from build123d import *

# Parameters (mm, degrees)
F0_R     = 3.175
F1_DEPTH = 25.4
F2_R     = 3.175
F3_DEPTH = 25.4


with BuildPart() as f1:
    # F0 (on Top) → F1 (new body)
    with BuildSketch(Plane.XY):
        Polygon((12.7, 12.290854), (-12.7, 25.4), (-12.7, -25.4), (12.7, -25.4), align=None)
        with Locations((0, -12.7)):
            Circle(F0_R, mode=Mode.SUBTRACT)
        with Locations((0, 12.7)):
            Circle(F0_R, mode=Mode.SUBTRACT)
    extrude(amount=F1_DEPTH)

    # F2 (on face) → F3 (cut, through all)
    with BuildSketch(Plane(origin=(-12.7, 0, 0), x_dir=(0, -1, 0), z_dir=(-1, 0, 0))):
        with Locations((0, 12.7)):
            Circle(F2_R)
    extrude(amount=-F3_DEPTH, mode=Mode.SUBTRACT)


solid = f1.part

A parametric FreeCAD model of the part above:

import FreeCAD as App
import Part
import Sketcher

V = App.Vector
Q = App.Units.Quantity


def add_polygon(sketch, points):
    """Adds a closed chain of lines whose ends are joined by coincident constraints."""
    first, n = sketch.GeometryCount, len(points)
    for a, b in zip(points, points[1:] + points[:1]):
        sketch.addGeometry(Part.LineSegment(App.Vector(*a, 0), App.Vector(*b, 0)), False)
    for i in range(n):
        sketch.addConstraint(Sketcher.Constraint("Coincident", first + i, 2, first + (i + 1) % n, 1))

doc = App.newDocument("Part")
body = doc.addObject("PartDesign::Body", "Body")

# Sketch on XY plane
sketch1 = doc.addObject("Sketcher::SketchObject", "Sketch")
body.addObject(sketch1)
sketch1.AttachmentSupport = (doc.XY_Plane, [""])
sketch1.MapMode = "FlatFace"
add_polygon(sketch1, [(12.7, 12.3), (-12.7, 25.4), (-12.7, -25.4), (12.7, -25.4)])  # lines 0-3
sketch1.addGeometry(Part.Circle(V(0, -12.7, 0), V(0, 0, 1), 3.2), False)  # 4
sketch1.addGeometry(Part.Circle(V(0, 12.7, 0), V(0, 0, 1), 3.2), False)  # 5
sketch1.addConstraint(Sketcher.Constraint("Vertical", 1))
sketch1.addConstraint(Sketcher.Constraint("Horizontal", 2))
sketch1.addConstraint(Sketcher.Constraint("Vertical", 3))
sketch1.addConstraint(Sketcher.Constraint("Equal", 4, 5))
sketch1.addConstraint(Sketcher.Constraint("Symmetric", 4, 3, 5, 3, -1, 1))
sketch1.addConstraint(Sketcher.Constraint("Symmetric", 0, 2, 2, 2, -1, 1))
sketch1.addConstraint(Sketcher.Constraint("PointOnObject", 4, 3, -2))
sketch1.addConstraint(Sketcher.Constraint("Diameter", 4, Q("0.25 in")))
sketch1.addConstraint(Sketcher.Constraint("DistanceX", 2, 1, 2, 2, Q("1 in")))
sketch1.addConstraint(Sketcher.Constraint("DistanceY", 1, 2, 1, 1, Q("2 in")))
sketch1.addConstraint(Sketcher.Constraint("DistanceY", 4, 3, 5, 3, Q("1 in")))
sketch1.addConstraint(Sketcher.Constraint("Distance", 0, Q("28.583382 mm")))
pad1 = doc.addObject("PartDesign::Pad", "Pad")
body.addObject(pad1)
pad1.Profile = sketch1
pad1.Length = Q("1 in")

# Sketch on YZ plane
sketch2 = doc.addObject("Sketcher::SketchObject", "Sketch001")
body.addObject(sketch2)
sketch2.AttachmentSupport = (doc.YZ_Plane, [""])
sketch2.MapMode = "FlatFace"
sketch2.AttachmentOffset = App.Placement(V(0, 0, -0.5 * 25.4), App.Rotation())
sketch2.addGeometry(Part.Circle(V(0, 12.7, 0), V(0, 0, 1), 3.2), False)
sketch2.addConstraint(Sketcher.Constraint("PointOnObject", 0, 3, -2))
sketch2.addConstraint(Sketcher.Constraint("Diameter", 0, Q("0.25 in")))
sketch2.addConstraint(Sketcher.Constraint("DistanceY", -1, 1, 0, 3, Q("0.5 in")))
pocket1 = doc.addObject("PartDesign::Pocket", "Pocket")
body.addObject(pocket1)
pocket1.Profile = sketch2
pocket1.Type = "ThroughAll"
pocket1.Reversed = True

doc.recompute()
